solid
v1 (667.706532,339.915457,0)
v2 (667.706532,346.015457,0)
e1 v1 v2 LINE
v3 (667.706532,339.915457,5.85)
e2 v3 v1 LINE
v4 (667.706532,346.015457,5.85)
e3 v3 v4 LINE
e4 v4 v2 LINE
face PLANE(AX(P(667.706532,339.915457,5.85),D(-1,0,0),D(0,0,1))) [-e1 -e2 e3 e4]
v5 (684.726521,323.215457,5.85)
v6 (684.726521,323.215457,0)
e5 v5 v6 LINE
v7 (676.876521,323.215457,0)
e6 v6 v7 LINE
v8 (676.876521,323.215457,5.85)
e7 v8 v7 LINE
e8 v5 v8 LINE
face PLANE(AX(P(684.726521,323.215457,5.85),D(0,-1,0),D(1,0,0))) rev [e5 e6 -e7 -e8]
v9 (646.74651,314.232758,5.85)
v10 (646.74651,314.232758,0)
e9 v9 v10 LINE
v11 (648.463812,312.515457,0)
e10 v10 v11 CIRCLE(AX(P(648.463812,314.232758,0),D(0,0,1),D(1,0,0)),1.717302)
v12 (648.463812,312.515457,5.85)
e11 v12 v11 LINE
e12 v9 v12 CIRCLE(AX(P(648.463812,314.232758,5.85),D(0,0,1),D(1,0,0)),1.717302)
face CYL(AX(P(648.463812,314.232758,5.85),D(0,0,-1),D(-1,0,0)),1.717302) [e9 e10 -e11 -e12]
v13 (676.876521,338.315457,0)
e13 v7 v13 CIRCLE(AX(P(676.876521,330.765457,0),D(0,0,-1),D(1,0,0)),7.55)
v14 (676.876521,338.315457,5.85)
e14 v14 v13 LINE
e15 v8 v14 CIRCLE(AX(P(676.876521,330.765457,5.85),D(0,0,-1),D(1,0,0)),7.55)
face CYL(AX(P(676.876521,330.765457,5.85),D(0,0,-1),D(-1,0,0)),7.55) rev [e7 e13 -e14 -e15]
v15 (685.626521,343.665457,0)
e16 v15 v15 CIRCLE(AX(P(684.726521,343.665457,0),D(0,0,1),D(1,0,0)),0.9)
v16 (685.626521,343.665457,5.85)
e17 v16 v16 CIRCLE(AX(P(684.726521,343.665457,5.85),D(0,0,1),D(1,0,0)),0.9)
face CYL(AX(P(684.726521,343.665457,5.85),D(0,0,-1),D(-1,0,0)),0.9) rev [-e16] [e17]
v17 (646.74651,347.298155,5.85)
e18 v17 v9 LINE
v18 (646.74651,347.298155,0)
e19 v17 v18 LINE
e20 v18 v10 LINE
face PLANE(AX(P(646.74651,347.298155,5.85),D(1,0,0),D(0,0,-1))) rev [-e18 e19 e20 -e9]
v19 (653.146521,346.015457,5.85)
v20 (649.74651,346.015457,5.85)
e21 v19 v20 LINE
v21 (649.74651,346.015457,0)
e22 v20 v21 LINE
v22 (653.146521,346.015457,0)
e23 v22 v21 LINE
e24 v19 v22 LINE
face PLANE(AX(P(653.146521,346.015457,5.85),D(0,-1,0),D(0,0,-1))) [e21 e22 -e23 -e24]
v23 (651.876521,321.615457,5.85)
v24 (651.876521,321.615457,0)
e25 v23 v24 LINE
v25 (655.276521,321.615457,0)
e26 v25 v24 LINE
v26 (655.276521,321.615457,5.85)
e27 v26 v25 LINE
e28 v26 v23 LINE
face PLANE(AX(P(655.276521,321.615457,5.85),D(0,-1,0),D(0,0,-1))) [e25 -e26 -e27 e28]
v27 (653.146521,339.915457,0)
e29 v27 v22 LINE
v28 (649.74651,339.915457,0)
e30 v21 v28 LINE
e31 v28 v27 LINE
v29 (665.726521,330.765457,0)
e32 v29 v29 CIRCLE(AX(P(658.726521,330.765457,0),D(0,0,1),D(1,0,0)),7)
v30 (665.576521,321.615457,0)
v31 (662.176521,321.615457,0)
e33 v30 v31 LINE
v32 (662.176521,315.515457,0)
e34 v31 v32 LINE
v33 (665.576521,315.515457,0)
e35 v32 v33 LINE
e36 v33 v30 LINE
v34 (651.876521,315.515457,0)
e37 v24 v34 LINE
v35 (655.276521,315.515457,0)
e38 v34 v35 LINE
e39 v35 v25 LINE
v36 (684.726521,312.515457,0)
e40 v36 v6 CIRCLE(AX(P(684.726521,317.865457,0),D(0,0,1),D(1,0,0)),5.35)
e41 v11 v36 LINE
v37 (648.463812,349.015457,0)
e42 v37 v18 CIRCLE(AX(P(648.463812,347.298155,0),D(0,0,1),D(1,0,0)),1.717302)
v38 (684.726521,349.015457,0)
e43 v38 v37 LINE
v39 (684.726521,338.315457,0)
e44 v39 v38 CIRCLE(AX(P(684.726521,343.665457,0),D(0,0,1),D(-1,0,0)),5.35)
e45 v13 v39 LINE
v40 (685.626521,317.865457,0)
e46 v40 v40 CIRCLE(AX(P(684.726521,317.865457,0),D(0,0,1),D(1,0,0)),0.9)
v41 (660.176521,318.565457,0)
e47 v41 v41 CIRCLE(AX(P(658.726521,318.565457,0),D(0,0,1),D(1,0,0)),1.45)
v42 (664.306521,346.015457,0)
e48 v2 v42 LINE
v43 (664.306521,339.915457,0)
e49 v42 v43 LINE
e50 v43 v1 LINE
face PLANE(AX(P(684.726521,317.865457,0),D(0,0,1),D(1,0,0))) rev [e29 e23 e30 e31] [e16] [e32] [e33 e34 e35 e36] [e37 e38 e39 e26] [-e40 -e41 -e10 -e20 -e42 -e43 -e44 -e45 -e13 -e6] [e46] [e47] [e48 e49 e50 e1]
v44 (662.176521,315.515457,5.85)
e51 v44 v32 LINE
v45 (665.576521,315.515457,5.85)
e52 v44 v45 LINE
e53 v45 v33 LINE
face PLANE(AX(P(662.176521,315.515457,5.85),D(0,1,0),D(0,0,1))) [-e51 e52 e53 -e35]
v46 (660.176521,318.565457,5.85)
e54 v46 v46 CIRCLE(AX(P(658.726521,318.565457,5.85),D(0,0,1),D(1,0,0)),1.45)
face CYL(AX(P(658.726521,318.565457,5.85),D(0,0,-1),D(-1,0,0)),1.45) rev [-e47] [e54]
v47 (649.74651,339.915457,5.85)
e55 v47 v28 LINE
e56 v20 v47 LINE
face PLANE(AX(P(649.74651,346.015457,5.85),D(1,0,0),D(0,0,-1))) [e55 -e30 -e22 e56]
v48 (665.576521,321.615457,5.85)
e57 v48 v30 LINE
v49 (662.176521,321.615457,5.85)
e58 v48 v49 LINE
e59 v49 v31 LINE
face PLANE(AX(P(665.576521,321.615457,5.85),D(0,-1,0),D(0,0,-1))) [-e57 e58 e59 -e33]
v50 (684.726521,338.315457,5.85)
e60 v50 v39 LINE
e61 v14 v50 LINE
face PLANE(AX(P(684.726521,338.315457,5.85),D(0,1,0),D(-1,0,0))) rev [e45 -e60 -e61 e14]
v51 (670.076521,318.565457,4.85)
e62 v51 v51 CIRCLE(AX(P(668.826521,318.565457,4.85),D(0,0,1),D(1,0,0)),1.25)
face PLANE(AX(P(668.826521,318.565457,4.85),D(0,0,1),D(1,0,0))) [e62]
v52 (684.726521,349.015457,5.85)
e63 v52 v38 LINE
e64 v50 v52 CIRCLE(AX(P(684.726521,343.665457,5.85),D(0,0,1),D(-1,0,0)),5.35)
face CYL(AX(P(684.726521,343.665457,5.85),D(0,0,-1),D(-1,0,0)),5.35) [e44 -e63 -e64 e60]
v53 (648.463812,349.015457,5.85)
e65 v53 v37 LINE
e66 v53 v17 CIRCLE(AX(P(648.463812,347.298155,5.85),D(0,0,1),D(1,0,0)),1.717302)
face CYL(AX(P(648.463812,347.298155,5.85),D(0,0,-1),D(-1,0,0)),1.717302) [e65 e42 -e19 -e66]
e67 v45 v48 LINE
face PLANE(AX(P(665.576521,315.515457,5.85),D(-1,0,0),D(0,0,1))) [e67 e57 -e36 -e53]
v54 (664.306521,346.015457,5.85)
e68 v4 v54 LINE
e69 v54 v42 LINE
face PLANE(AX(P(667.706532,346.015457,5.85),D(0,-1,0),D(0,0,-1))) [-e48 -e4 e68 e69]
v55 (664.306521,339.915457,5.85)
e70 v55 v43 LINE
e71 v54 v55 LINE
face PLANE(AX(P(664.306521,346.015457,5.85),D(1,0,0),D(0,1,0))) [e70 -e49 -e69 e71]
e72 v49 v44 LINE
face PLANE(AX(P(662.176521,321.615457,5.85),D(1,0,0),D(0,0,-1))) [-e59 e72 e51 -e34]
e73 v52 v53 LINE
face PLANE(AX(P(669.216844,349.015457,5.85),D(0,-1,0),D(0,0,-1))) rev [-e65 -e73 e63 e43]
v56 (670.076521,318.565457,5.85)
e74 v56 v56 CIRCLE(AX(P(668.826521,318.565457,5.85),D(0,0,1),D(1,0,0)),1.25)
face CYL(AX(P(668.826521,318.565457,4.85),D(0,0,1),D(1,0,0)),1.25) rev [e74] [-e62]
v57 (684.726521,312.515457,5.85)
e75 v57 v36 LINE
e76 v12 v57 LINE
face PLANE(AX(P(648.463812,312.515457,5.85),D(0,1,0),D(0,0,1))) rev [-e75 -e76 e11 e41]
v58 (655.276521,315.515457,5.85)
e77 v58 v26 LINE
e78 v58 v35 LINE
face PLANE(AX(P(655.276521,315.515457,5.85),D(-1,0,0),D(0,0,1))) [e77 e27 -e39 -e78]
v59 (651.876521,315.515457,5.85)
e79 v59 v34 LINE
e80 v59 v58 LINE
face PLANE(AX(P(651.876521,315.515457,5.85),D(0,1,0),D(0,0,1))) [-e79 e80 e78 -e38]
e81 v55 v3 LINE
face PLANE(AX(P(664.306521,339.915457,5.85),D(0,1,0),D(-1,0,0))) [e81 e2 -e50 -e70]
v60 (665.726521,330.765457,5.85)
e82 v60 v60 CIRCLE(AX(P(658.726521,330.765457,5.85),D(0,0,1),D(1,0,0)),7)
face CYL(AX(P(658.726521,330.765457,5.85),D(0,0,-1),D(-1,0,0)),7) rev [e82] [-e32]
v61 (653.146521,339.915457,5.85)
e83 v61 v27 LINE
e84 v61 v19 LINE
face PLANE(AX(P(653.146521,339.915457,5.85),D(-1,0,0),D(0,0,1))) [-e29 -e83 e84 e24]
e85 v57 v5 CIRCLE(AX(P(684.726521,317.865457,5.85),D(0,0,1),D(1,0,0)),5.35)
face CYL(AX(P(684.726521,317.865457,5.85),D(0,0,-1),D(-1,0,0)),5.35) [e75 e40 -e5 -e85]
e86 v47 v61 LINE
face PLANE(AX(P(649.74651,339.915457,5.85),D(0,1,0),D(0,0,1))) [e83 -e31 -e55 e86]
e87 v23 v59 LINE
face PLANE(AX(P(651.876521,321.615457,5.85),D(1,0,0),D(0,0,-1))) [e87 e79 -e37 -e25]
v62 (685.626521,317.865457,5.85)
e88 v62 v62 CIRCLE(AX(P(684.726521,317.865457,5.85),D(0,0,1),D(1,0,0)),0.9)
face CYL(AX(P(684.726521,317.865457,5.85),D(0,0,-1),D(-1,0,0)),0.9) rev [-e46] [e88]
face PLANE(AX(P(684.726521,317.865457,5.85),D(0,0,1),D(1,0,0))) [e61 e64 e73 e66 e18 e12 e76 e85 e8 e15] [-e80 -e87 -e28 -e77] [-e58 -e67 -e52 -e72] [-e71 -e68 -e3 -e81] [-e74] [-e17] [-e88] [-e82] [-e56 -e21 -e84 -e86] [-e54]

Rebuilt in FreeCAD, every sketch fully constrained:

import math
import FreeCAD as App
import Part
import Sketcher
Q = App.Units.Quantity

doc = App.newDocument("Part")
body = doc.addObject("PartDesign::Body", "Body")

# Sketch on XY plane
sketch1 = body.newObject("Sketcher::SketchObject", "Sketch")
sketch1.AttachmentSupport = (doc.getObject("XY_Plane"), [""])
sketch1.MapMode = "FlatFace"
sketch1.addGeometry(Part.ArcOfCircle(Part.Circle(App.Vector(648.5, 347.3, 0), App.Vector(0, 0, 1), 1.7), math.radians(90), math.radians(180)), False)
sketch1.addGeometry(Part.LineSegment(App.Vector(646.7, 347.3, 0), App.Vector(646.7, 314.2, 0)), False)
sketch1.addGeometry(Part.ArcOfCircle(Part.Circle(App.Vector(648.5, 314.2, 0), App.Vector(0, 0, 1), 1.7), math.radians(-180), math.radians(-90)), False)
sketch1.addGeometry(Part.LineSegment(App.Vector(648.5, 312.5, 0), App.Vector(684.7, 312.5, 0)), False)
sketch1.addGeometry(Part.ArcOfCircle(Part.Circle(App.Vector(684.7, 317.9, 0), App.Vector(0, 0, 1), 5.3), math.radians(-90), math.radians(90)), False)
sketch1.addGeometry(Part.LineSegment(App.Vector(684.7, 323.2, 0), App.Vector(676.9, 323.2, 0)), False)
sketch1.addGeometry(Part.ArcOfCircle(Part.Circle(App.Vector(676.9, 330.8, 0), App.Vector(0, 0, 1), 7.5), math.radians(90), math.radians(270)), False)
sketch1.addGeometry(Part.LineSegment(App.Vector(676.9, 338.3, 0), App.Vector(684.7, 338.3, 0)), False)
sketch1.addGeometry(Part.ArcOfCircle(Part.Circle(App.Vector(684.7, 343.7, 0), App.Vector(0, 0, 1), 5.3), math.radians(-90), math.radians(90)), False)
sketch1.addGeometry(Part.LineSegment(App.Vector(684.7, 349, 0), App.Vector(648.5, 349, 0)), False)
sketch1.addGeometry(Part.LineSegment(App.Vector(655.3, 315.5, 0), App.Vector(651.9, 315.5, 0)), False)
sketch1.addGeometry(Part.LineSegment(App.Vector(651.9, 315.5, 0), App.Vector(651.9, 321.6, 0)), False)
sketch1.addGeometry(Part.LineSegment(App.Vector(651.9, 321.6, 0), App.Vector(655.3, 321.6, 0)), False)
sketch1.addGeometry(Part.LineSegment(App.Vector(655.3, 321.6, 0), App.Vector(655.3, 315.5, 0)), False)
sketch1.addGeometry(Part.Circle(App.Vector(658.7, 318.6, 0), App.Vector(0, 0, 1), 1.4), False)
sketch1.addGeometry(Part.LineSegment(App.Vector(665.6, 315.5, 0), App.Vector(662.2, 315.5, 0)), False)
sketch1.addGeometry(Part.LineSegment(App.Vector(662.2, 315.5, 0), App.Vector(662.2, 321.6, 0)), False)
sketch1.addGeometry(Part.LineSegment(App.Vector(662.2, 321.6, 0), App.Vector(665.6, 321.6, 0)), False)
sketch1.addGeometry(Part.LineSegment(App.Vector(665.6, 321.6, 0), App.Vector(665.6, 315.5, 0)), False)
sketch1.addGeometry(Part.Circle(App.Vector(684.7, 317.9, 0), App.Vector(0, 0, 1), 0.9), False)
sketch1.addGeometry(Part.Circle(App.Vector(658.7, 330.8, 0), App.Vector(0, 0, 1), 7), False)
sketch1.addGeometry(Part.LineSegment(App.Vector(653.1, 339.9, 0), App.Vector(649.7, 339.9, 0)), False)
sketch1.addGeometry(Part.LineSegment(App.Vector(649.7, 339.9, 0), App.Vector(649.7, 346, 0)), False)
sketch1.addGeometry(Part.LineSegment(App.Vector(649.7, 346, 0), App.Vector(653.1, 346, 0)), False)
sketch1.addGeometry(Part.LineSegment(App.Vector(653.1, 346, 0), App.Vector(653.1, 339.9, 0)), False)
sketch1.addGeometry(Part.LineSegment(App.Vector(667.7, 339.9, 0), App.Vector(664.3, 339.9, 0)), False)
sketch1.addGeometry(Part.LineSegment(App.Vector(664.3, 339.9, 0), App.Vector(664.3, 346, 0)), False)
sketch1.addGeometry(Part.LineSegment(App.Vector(664.3, 346, 0), App.Vector(667.7, 346, 0)), False)
sketch1.addGeometry(Part.LineSegment(App.Vector(667.7, 346, 0), App.Vector(667.7, 339.9, 0)), False)
sketch1.addGeometry(Part.Circle(App.Vector(684.7, 343.7, 0), App.Vector(0, 0, 1), 0.9), False)
sketch1.addConstraint(Sketcher.Constraint("Tangent", 0, 2, 1, 1))
sketch1.addConstraint(Sketcher.Constraint("Tangent", 1, 2, 2, 1))
sketch1.addConstraint(Sketcher.Constraint("Tangent", 2, 2, 3, 1))
sketch1.addConstraint(Sketcher.Constraint("Tangent", 3, 2, 4, 1))
sketch1.addConstraint(Sketcher.Constraint("Tangent", 4, 2, 5, 1))
sketch1.addConstraint(Sketcher.Constraint("Tangent", 5, 2, 6, 2))
sketch1.addConstraint(Sketcher.Constraint("Tangent", 6, 1, 7, 1))
sketch1.addConstraint(Sketcher.Constraint("Tangent", 7, 2, 8, 1))
sketch1.addConstraint(Sketcher.Constraint("Tangent", 8, 2, 9, 1))
sketch1.addConstraint(Sketcher.Constraint("Tangent", 9, 2, 0, 1))
sketch1.addConstraint(Sketcher.Constraint("Coincident", 10, 2, 11, 1))
sketch1.addConstraint(Sketcher.Constraint("Coincident", 11, 2, 12, 1))
sketch1.addConstraint(Sketcher.Constraint("Coincident", 12, 2, 13, 1))
sketch1.addConstraint(Sketcher.Constraint("Coincident", 13, 2, 10, 1))
sketch1.addConstraint(Sketcher.Constraint("Coincident", 15, 2, 16, 1))
sketch1.addConstraint(Sketcher.Constraint("Coincident", 16, 2, 17, 1))
sketch1.addConstraint(Sketcher.Constraint("Coincident", 17, 2, 18, 1))
sketch1.addConstraint(Sketcher.Constraint("Coincident", 18, 2, 15, 1))
sketch1.addConstraint(Sketcher.Constraint("Coincident", 21, 2, 22, 1))
sketch1.addConstraint(Sketcher.Constraint("Coincident", 22, 2, 23, 1))
sketch1.addConstraint(Sketcher.Constraint("Coincident", 23, 2, 24, 1))
sketch1.addConstraint(Sketcher.Constraint("Coincident", 24, 2, 21, 1))
sketch1.addConstraint(Sketcher.Constraint("Coincident", 25, 2, 26, 1))
sketch1.addConstraint(Sketcher.Constraint("Coincident", 26, 2, 27, 1))
sketch1.addConstraint(Sketcher.Constraint("Coincident", 27, 2, 28, 1))
sketch1.addConstraint(Sketcher.Constraint("Coincident", 28, 2, 25, 1))
sketch1.addConstraint(Sketcher.Constraint("Vertical", 1))
sketch1.addConstraint(Sketcher.Constraint("Horizontal", 3))
sketch1.addConstraint(Sketcher.Constraint("Horizontal", 5))
sketch1.addConstraint(Sketcher.Constraint("Horizontal", 7))
sketch1.addConstraint(Sketcher.Constraint("Horizontal", 9))
sketch1.addConstraint(Sketcher.Constraint("Horizontal", 10))
sketch1.addConstraint(Sketcher.Constraint("Vertical", 11))
sketch1.addConstraint(Sketcher.Constraint("Horizontal", 12))
sketch1.addConstraint(Sketcher.Constraint("Vertical", 13))
sketch1.addConstraint(Sketcher.Constraint("Horizontal", 15))
sketch1.addConstraint(Sketcher.Constraint("Vertical", 16))
sketch1.addConstraint(Sketcher.Constraint("Horizontal", 17))
sketch1.addConstraint(Sketcher.Constraint("Vertical", 18))
sketch1.addConstraint(Sketcher.Constraint("Horizontal", 21))
sketch1.addConstraint(Sketcher.Constraint("Vertical", 22))
sketch1.addConstraint(Sketcher.Constraint("Horizontal", 23))
sketch1.addConstraint(Sketcher.Constraint("Vertical", 24))
sketch1.addConstraint(Sketcher.Constraint("Horizontal", 25))
sketch1.addConstraint(Sketcher.Constraint("Vertical", 26))
sketch1.addConstraint(Sketcher.Constraint("Horizontal", 27))
sketch1.addConstraint(Sketcher.Constraint("Vertical", 28))
sketch1.addConstraint(Sketcher.Constraint("Coincident", 19, 3, 4, 3))
sketch1.addConstraint(Sketcher.Constraint("Coincident", 29, 3, 8, 3))
sketch1.addConstraint(Sketcher.Constraint("Equal", 0, 2))
sketch1.addConstraint(Sketcher.Constraint("Equal", 4, 8))
sketch1.addConstraint(Sketcher.Constraint("Equal", 19, 29))
sketch1.addConstraint(Sketcher.Constraint("Horizontal", 6, 3, 20, 3))
sketch1.addConstraint(Sketcher.Constraint("Horizontal", 13, 2, 15, 2))
sketch1.addConstraint(Sketcher.Constraint("Horizontal", 12, 2, 16, 2))
sketch1.addConstraint(Sketcher.Constraint("Horizontal", 24, 2, 25, 2))
sketch1.addConstraint(Sketcher.Constraint("Horizontal", 23, 2, 26, 2))
sketch1.addConstraint(Sketcher.Constraint("Vertical", 4, 3, 8, 3))
sketch1.addConstraint(Sketcher.Constraint("Vertical", 14, 3, 20, 3))
sketch1.addConstraint(Sketcher.Constraint("Equal", 12, 15))
sketch1.addConstraint(Sketcher.Constraint("Equal", 23, 25))
sketch1.addConstraint(Sketcher.Constraint("Equal", 18, 22))
sketch1.addConstraint(Sketcher.Constraint("Diameter", 20, Q("14 mm")))
sketch1.addConstraint(Sketcher.Constraint("Diameter", 14, Q("2.9 mm")))
sketch1.addConstraint(Sketcher.Constraint("Diameter", 19, Q("1.8 mm")))
sketch1.addConstraint(Sketcher.Constraint("Radius", 4, Q("5.35 mm")))
sketch1.addConstraint(Sketcher.Constraint("Radius", 6, Q("7.55 mm")))
sketch1.addConstraint(Sketcher.Constraint("DistanceX", 10, 2, 10, 1, Q("3.4 mm")))
sketch1.addConstraint(Sketcher.Constraint("DistanceY", 11, 1, 11, 2, Q("6.1 mm")))
sketch1.addConstraint(Sketcher.Constraint("DistanceX", 14, 3, 4, 3, Q("26 mm")))
sketch1.addConstraint(Sketcher.Constraint("DistanceY", 2, 2, 10, 2, Q("3 mm")))
sketch1.addConstraint(Sketcher.Constraint("DistanceX", 0, 2, 21, 2, Q("3 mm")))
sketch1.addConstraint(Sketcher.Constraint("DistanceY", 22, 2, 9, 2, Q("3 mm")))
sketch1.addConstraint(Sketcher.Constraint("DistanceX", 5, 2, 5, 1, Q("7.85 mm")))
sketch1.addConstraint(Sketcher.Constraint("Radius", 0, Q("1.717302 mm")))
sketch1.addConstraint(Sketcher.Constraint("DistanceY", 14, 3, 6, 3, Q("12.2 mm")))
sketch1.addConstraint(Sketcher.Constraint("DistanceX", 13, 2, 15, 2, Q("6.9 mm")))
sketch1.addConstraint(Sketcher.Constraint("DistanceX", 17, 2, 5, 2, Q("11.3 mm")))
sketch1.addConstraint(Sketcher.Constraint("DistanceX", 20, 3, 25, 2, Q("5.58 mm")))
sketch1.addConstraint(Sketcher.Constraint("DistanceX", 24, 2, 25, 2, Q("11.16 mm")))
sketch1.addConstraint(Sketcher.Constraint("DistanceX", 3, 1, 3, 2, Q("36.262709 mm")))
sketch1.addConstraint(Sketcher.Constraint("DistanceX", -1, 1, 0, 3, Q("648.463812 mm")))
sketch1.addConstraint(Sketcher.Constraint("DistanceY", -1, 1, 2, 3, Q("314.232758 mm")))
pad1 = body.newObject("PartDesign::Pad", "Pad")
pad1.Profile = sketch1
pad1.Length = 5.85

# Sketch on XY plane
sketch2 = body.newObject("Sketcher::SketchObject", "Sketch001")
sketch2.AttachmentSupport = (doc.getObject("XY_Plane"), [""])
sketch2.MapMode = "FlatFace"
sketch2.AttachmentOffset = App.Placement(App.Vector(0, 0, 5.85), App.Rotation())
sketch2.addGeometry(Part.Circle(App.Vector(668.8, 318.6, 0), App.Vector(0, 0, 1), 1.2), False)
sketch2.addConstraint(Sketcher.Constraint("Diameter", 0, Q("2.5 mm")))
sketch2.addConstraint(Sketcher.Constraint("DistanceX", -1, 1, 0, 3, Q("668.826521 mm")))
sketch2.addConstraint(Sketcher.Constraint("DistanceY", -1, 1, 0, 3, Q("318.565457 mm")))
pocket1 = body.newObject("PartDesign::Pocket", "Pocket")
pocket1.Profile = sketch2
pocket1.Length = 1

doc.recompute()
